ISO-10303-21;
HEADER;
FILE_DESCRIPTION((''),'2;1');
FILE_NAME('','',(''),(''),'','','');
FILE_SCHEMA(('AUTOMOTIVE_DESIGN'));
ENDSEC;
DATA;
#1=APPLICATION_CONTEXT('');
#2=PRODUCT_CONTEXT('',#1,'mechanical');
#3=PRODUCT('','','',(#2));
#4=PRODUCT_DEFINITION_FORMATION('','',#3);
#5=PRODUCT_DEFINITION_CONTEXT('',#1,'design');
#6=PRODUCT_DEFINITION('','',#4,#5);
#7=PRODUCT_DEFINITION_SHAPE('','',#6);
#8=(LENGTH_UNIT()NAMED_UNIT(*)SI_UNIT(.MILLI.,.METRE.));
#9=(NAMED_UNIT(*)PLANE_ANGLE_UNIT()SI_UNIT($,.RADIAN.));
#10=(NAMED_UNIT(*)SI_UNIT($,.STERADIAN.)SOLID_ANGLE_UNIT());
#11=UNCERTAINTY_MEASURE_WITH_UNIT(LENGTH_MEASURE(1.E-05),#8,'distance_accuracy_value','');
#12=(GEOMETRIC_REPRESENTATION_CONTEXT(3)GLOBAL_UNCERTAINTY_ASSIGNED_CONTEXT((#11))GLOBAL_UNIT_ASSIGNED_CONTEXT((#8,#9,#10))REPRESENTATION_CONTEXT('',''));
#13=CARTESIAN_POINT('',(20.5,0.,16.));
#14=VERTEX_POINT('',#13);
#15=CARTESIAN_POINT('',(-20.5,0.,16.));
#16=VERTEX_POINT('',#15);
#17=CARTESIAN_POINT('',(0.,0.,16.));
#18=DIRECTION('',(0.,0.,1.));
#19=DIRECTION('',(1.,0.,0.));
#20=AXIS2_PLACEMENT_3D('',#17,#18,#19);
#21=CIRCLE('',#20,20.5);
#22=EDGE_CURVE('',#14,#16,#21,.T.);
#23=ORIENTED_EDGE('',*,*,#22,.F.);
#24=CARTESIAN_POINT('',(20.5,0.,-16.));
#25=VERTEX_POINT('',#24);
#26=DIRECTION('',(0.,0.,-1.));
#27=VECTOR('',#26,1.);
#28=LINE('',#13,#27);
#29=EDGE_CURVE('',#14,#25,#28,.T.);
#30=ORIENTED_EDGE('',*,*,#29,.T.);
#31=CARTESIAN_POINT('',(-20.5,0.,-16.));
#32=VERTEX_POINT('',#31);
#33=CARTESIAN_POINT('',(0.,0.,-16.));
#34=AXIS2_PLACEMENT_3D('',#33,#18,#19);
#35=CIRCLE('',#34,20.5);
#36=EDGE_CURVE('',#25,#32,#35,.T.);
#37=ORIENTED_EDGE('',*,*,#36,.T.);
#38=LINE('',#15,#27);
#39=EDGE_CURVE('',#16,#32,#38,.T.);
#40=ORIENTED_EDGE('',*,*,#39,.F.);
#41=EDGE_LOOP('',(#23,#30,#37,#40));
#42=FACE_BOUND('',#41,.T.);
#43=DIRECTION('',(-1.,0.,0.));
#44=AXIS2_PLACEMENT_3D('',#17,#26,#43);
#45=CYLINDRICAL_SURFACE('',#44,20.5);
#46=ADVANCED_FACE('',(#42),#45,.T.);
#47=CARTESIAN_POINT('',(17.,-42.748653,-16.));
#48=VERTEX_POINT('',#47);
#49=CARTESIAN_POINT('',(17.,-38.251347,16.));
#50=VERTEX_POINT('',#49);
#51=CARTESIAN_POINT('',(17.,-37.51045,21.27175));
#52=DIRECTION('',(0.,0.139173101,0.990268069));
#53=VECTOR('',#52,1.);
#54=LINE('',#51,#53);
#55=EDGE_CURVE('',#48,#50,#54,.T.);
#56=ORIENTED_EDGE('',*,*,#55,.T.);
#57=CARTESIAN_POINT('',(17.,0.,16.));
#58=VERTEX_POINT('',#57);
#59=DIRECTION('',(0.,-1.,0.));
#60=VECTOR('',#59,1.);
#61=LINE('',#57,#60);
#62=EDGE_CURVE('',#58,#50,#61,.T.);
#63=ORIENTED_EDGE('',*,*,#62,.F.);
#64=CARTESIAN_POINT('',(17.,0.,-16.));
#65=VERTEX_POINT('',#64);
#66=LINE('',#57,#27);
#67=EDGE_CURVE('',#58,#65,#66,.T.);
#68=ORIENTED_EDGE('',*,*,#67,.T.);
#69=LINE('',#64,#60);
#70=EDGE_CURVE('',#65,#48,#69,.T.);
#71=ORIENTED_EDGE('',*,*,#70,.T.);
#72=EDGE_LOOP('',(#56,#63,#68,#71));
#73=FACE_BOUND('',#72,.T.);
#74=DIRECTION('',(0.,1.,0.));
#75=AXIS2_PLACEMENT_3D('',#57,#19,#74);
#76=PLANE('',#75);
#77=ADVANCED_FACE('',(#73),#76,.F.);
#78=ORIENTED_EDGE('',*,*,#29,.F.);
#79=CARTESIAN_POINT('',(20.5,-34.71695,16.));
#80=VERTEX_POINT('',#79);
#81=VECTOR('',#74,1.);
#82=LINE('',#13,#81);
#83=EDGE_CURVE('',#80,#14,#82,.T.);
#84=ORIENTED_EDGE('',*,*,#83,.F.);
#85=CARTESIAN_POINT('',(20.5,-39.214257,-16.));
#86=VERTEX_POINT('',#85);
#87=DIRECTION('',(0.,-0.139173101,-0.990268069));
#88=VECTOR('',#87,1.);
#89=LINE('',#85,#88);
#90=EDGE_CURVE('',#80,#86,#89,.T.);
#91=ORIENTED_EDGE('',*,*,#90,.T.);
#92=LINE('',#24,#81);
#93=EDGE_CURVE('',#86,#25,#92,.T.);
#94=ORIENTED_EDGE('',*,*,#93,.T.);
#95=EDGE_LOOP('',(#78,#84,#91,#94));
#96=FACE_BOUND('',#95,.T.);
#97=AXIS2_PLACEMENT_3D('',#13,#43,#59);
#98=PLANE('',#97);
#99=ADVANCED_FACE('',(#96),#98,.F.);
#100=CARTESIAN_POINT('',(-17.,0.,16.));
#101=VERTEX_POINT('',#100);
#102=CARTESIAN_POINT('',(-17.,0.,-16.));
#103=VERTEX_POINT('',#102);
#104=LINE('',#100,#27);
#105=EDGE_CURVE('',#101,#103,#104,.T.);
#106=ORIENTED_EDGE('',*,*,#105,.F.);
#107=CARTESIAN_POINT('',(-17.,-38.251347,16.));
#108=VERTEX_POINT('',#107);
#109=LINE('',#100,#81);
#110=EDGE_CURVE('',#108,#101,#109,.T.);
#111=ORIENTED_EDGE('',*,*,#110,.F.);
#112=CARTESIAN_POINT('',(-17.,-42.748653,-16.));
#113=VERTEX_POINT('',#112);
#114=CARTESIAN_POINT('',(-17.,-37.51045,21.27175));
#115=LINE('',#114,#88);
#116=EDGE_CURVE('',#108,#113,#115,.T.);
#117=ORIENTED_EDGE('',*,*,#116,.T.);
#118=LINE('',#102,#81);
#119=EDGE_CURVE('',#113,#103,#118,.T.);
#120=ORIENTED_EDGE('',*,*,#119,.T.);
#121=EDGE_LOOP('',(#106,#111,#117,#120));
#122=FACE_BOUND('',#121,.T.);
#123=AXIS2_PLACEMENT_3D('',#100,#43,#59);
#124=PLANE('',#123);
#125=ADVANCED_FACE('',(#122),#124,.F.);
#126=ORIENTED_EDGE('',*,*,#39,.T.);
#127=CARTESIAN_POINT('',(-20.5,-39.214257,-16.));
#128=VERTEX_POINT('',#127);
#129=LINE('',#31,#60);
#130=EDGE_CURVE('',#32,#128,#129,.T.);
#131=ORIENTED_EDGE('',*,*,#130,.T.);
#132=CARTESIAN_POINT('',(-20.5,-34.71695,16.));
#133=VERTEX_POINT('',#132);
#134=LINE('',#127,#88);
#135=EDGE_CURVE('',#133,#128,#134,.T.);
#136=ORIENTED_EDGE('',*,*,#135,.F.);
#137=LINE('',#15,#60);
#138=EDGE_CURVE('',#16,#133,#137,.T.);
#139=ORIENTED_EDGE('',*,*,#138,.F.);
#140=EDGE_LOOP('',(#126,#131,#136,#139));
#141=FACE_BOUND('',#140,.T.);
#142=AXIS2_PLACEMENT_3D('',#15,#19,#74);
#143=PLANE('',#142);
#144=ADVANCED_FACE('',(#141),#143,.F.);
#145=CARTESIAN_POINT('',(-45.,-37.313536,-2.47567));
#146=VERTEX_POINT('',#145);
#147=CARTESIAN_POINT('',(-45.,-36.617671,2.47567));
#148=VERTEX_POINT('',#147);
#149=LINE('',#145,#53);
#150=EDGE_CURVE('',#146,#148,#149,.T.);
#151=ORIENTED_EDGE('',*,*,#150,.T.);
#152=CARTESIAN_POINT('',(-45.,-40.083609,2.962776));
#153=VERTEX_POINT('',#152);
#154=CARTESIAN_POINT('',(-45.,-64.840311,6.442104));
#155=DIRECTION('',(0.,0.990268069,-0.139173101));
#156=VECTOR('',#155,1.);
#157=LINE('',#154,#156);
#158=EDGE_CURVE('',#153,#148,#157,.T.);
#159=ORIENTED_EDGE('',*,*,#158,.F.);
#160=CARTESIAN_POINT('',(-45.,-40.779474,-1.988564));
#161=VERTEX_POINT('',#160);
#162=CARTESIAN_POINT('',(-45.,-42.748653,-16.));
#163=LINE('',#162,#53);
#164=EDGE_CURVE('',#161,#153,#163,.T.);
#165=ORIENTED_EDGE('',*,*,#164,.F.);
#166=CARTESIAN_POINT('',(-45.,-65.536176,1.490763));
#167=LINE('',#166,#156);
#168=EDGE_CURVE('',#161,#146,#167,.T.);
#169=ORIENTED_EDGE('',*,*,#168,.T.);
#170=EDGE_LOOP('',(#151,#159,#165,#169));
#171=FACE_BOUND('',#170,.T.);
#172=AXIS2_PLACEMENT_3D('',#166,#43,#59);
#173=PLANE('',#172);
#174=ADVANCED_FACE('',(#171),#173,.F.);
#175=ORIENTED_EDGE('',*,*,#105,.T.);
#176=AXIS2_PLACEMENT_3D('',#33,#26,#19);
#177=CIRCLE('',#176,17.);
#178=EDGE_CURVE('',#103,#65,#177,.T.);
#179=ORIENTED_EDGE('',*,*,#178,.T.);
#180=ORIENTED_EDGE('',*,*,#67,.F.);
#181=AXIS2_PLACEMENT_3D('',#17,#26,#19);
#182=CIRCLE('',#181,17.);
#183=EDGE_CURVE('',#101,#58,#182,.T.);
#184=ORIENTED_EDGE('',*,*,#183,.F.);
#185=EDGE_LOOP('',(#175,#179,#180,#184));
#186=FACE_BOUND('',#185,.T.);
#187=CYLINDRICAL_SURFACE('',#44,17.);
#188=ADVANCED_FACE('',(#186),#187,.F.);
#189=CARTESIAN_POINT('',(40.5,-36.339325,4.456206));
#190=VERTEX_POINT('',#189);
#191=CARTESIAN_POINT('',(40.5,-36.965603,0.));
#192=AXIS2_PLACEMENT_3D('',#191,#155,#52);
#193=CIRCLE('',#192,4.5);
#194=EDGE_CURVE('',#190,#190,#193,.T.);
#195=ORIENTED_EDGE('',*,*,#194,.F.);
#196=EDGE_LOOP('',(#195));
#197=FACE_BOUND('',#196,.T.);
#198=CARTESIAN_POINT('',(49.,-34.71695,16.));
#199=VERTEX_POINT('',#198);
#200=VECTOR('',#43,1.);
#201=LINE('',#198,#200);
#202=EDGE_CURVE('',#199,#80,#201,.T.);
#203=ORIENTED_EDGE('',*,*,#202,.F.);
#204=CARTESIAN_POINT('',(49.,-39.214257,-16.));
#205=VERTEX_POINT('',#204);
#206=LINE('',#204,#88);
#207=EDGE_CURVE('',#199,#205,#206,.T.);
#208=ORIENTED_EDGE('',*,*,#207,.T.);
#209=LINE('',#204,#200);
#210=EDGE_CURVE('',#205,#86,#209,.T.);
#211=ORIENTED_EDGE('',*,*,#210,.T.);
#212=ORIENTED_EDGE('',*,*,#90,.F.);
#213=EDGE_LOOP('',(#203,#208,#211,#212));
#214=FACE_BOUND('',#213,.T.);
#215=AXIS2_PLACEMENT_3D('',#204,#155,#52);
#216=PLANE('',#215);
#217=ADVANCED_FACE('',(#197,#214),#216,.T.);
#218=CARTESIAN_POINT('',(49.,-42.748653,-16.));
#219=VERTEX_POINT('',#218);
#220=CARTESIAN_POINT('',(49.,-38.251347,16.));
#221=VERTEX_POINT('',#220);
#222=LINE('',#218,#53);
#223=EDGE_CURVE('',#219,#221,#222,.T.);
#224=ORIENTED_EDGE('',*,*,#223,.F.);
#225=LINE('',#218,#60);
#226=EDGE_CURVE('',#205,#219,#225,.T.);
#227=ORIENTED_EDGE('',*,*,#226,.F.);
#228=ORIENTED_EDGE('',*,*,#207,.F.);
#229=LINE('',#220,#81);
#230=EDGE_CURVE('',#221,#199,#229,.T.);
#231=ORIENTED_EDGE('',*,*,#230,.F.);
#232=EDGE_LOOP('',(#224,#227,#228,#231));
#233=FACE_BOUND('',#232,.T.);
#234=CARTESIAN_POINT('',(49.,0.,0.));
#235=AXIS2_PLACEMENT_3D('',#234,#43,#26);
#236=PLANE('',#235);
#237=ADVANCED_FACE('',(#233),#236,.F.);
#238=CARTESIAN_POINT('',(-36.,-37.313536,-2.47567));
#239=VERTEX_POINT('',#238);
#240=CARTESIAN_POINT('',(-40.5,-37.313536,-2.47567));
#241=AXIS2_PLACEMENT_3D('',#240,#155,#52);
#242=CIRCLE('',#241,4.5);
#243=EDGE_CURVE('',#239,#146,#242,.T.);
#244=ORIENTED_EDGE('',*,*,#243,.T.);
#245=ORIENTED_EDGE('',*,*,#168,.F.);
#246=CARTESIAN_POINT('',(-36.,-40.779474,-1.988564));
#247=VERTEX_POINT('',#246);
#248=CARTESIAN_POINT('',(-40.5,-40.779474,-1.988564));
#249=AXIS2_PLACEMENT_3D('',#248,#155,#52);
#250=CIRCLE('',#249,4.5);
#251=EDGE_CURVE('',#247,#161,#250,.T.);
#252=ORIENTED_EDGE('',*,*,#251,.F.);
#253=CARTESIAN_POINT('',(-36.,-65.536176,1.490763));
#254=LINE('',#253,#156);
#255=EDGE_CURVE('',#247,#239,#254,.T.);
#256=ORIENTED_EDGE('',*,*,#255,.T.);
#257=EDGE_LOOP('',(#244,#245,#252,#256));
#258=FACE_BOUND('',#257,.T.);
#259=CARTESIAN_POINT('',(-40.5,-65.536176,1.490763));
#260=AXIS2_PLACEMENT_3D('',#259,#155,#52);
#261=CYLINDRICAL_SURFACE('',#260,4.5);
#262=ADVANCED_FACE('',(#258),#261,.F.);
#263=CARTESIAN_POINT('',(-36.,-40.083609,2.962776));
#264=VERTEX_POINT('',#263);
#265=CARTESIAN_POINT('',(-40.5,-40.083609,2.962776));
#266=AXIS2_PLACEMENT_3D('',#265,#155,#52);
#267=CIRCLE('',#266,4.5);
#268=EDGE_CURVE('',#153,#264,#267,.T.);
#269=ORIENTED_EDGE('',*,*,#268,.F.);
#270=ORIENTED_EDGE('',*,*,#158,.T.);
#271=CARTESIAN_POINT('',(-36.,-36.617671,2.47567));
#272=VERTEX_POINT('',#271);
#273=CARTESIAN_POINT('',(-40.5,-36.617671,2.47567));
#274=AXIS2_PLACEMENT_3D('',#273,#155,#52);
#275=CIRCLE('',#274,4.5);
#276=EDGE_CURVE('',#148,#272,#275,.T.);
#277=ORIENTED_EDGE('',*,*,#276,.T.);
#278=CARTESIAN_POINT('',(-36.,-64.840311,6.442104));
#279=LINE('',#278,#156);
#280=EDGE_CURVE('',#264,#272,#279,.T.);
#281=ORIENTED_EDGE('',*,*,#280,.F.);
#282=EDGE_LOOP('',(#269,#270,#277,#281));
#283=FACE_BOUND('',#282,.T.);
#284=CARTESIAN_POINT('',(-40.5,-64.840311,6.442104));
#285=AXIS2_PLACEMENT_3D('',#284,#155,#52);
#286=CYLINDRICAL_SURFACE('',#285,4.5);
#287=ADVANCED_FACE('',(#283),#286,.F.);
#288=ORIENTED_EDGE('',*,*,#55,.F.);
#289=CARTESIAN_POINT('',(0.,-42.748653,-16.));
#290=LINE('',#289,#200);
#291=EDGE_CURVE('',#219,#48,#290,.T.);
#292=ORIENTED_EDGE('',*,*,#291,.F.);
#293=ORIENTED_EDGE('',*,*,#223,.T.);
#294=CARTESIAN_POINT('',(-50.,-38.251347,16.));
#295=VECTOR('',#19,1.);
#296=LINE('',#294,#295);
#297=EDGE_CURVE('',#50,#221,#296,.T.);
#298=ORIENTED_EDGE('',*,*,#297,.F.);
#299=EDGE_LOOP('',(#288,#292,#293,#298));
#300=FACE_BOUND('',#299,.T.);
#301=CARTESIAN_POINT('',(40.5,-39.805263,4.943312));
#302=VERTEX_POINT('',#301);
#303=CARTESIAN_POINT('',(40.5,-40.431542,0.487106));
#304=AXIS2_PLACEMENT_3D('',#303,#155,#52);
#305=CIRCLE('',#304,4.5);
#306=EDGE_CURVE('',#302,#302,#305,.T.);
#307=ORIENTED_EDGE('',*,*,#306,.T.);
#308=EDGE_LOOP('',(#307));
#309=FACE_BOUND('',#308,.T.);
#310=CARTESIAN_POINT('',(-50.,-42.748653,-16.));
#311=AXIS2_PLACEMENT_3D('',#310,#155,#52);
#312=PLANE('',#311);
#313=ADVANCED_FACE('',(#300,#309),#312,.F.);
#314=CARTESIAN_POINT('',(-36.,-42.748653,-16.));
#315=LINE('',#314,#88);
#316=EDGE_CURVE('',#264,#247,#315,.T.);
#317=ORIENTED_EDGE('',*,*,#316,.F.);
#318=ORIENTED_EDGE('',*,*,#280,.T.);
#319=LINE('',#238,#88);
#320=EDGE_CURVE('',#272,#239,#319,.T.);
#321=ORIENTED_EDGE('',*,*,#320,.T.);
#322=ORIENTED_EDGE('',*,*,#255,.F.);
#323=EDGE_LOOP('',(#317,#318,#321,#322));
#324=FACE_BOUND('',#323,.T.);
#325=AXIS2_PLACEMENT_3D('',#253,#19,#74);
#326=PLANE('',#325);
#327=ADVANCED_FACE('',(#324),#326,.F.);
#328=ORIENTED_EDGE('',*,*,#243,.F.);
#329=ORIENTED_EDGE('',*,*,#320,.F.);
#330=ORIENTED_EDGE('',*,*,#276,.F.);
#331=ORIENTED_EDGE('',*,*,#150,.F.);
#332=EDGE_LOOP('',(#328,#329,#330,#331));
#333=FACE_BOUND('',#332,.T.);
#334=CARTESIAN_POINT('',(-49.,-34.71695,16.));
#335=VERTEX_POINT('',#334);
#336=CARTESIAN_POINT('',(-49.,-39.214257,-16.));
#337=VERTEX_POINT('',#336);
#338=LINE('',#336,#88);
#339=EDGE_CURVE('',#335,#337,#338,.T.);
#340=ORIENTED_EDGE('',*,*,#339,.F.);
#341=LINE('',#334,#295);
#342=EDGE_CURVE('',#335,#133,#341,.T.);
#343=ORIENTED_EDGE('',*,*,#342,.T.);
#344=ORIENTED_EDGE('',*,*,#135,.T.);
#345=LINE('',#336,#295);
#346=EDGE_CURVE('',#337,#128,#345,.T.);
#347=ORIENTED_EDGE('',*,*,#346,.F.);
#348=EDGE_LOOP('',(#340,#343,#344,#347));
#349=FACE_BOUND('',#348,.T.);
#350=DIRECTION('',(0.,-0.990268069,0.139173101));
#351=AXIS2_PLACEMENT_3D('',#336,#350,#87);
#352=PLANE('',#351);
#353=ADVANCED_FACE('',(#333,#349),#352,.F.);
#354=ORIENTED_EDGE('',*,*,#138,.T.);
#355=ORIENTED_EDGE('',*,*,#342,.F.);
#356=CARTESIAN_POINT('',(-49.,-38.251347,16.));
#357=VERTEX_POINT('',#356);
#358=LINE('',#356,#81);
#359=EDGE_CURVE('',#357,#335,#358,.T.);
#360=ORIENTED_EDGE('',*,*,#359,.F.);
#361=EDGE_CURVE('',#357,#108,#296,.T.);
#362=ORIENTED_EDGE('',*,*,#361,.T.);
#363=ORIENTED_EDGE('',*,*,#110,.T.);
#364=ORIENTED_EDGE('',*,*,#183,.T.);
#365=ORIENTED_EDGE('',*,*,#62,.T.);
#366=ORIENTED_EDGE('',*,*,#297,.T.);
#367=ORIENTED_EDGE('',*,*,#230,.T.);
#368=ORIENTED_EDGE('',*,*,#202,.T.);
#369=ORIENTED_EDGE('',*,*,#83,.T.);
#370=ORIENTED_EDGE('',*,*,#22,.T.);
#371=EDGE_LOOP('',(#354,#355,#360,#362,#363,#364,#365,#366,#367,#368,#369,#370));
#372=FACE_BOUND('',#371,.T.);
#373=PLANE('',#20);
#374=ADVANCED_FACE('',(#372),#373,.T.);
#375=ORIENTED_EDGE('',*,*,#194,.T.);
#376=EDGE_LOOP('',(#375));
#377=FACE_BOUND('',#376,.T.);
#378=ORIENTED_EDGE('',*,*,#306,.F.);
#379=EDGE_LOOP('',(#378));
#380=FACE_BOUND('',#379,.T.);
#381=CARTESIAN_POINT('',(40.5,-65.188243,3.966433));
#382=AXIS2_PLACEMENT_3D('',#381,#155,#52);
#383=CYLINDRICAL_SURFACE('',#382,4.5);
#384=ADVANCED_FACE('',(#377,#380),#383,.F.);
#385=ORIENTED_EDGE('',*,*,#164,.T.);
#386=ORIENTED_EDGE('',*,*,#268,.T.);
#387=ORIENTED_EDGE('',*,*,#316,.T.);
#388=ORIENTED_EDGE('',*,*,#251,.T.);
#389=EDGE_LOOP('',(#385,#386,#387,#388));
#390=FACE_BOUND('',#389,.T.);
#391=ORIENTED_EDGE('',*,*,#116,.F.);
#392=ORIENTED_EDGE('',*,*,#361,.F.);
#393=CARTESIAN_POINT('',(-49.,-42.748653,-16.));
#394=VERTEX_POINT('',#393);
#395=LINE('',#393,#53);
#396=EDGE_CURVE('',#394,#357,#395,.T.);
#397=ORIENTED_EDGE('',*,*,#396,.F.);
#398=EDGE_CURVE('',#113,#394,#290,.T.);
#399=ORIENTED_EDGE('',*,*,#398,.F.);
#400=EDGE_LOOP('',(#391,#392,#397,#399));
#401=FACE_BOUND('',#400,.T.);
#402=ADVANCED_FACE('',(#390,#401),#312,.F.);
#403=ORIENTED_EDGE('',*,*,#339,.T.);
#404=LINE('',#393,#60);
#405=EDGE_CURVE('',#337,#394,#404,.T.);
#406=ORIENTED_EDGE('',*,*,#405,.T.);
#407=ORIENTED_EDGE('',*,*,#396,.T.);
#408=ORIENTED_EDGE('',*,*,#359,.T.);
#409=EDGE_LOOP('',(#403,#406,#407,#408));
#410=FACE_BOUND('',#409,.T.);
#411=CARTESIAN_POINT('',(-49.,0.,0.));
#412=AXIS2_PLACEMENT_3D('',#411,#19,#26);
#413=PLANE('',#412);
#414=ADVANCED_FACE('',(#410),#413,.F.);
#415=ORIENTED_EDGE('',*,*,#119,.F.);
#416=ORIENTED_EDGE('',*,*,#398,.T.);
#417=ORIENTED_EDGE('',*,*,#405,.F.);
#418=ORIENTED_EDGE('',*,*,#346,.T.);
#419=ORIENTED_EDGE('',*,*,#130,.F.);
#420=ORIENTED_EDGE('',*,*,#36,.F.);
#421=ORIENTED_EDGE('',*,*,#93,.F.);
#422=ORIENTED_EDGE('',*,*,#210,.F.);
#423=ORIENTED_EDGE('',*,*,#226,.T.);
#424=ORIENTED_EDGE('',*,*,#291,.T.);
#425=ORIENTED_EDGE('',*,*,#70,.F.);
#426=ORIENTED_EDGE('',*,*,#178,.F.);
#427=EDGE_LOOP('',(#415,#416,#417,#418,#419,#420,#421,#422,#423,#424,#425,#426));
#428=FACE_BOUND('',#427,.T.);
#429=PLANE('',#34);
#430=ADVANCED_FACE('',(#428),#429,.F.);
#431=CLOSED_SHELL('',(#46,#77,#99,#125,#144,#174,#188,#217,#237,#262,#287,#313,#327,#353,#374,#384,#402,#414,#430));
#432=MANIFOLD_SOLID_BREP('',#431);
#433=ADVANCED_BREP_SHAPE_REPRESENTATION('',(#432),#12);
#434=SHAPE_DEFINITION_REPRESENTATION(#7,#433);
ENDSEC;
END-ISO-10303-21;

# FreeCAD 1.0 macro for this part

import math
import FreeCAD as App
import Part
import Sketcher
from FreeCAD import Vector
Q = App.Units.Quantity


def add_polygon(sketch, points):
    """Adds a closed chain of lines whose ends are joined by coincident constraints."""
    first, n = sketch.GeometryCount, len(points)
    for a, b in zip(points, points[1:] + points[:1]):
        sketch.addGeometry(Part.LineSegment(App.Vector(*a, 0), App.Vector(*b, 0)), False)
    for i in range(n):
        sketch.addConstraint(Sketcher.Constraint("Coincident", first + i, 2, first + (i + 1) % n, 1))

doc = App.newDocument("Part")
body = doc.addObject("PartDesign::Body", "Body")

sketch1 = body.newObject("Sketcher::SketchObject", "Sketch")
sketch1.AttachmentSupport = (doc.getObject("XY_Plane"), [""])
sketch1.MapMode = "FlatFace"
sketch1.addGeometry([
    Part.LineSegment(Vector(-17, -66.9, 0), Vector(-17, 0, 0)),
    Part.ArcOfCircle(Part.Circle(Vector(0, 0, 0), Vector(0, 0, 1), 17), math.radians(0), math.radians(180)),
    Part.LineSegment(Vector(17, 0, 0), Vector(17, -66.9, 0)),
    Part.LineSegment(Vector(17, -66.9, 0), Vector(20.5, -66.9, 0)),
    Part.LineSegment(Vector(20.5, -66.9, 0), Vector(20.5, 0, 0)),
    Part.ArcOfCircle(Part.Circle(Vector(0, 0, 0), Vector(0, 0, 1), 20.5), math.radians(0), math.radians(180)),
    Part.LineSegment(Vector(-20.5, 0, 0), Vector(-20.5, -66.9, 0)),
    Part.LineSegment(Vector(-20.5, -66.9, 0), Vector(-17, -66.9, 0)),
], False)
sketch1.addConstraint([
    Sketcher.Constraint("Tangent", 0, 2, 1, 2),
    Sketcher.Constraint("Tangent", 1, 1, 2, 1),
    Sketcher.Constraint("Coincident", 2, 2, 3, 1),
    Sketcher.Constraint("Coincident", 3, 2, 4, 1),
    Sketcher.Constraint("Tangent", 4, 2, 5, 1),
    Sketcher.Constraint("Tangent", 5, 2, 6, 1),
    Sketcher.Constraint("Coincident", 6, 2, 7, 1),
    Sketcher.Constraint("Coincident", 7, 2, 0, 1),
    Sketcher.Constraint("Vertical", 0),
    Sketcher.Constraint("Vertical", 2),
    Sketcher.Constraint("Horizontal", 3),
    Sketcher.Constraint("Vertical", 4),
    Sketcher.Constraint("Vertical", 6),
    Sketcher.Constraint("Horizontal", 7),
    Sketcher.Constraint("Coincident", 1, 3, -1, 1),
    Sketcher.Constraint("Coincident", 5, 3, -1, 1),
    Sketcher.Constraint("Horizontal", 3, 2, 6, 2),
    Sketcher.Constraint("Radius", 1, Q("17 mm")),
    Sketcher.Constraint("Radius", 5, Q("20.5 mm")),
    Sketcher.Constraint("DistanceY", 0, 1, 0, 2, Q("66.863887 mm")),
])
pad1 = body.newObject("PartDesign::Pad", "Pad")
pad1.Profile = sketch1
pad1.Length = 32
pad1.Midplane = True

sketch2 = body.newObject("Sketcher::SketchObject", "Sketch001")
sketch2.AttachmentSupport = (doc.getObject("YZ_Plane"), [""])
sketch2.MapMode = "FlatFace"
add_polygon(sketch2, [(-43, -16), (-38, 16), (-67, 16), (-67, -16)])
sketch2.addConstraint([
    Sketcher.Constraint("Horizontal", 1),
    Sketcher.Constraint("Vertical", 2),
    Sketcher.Constraint("Horizontal", 3),
    Sketcher.Constraint("DistanceY", 2, 2, 2, 1, Q("32 mm")),
    Sketcher.Constraint("Angle", 0, Q("82 deg")),
    Sketcher.Constraint("DistanceY", -1, 1, 0, 2, Q("16 mm")),
    Sketcher.Constraint("DistanceX", 1, 2, 1, 1, Q("28.61254 mm")),
    Sketcher.Constraint("DistanceX", 0, 2, -1, 1, Q("38.251347 mm")),
])
pocket1 = body.newObject("PartDesign::Pocket", "Pocket")
pocket1.Profile = sketch2
pocket1.Length = 100
pocket1.Midplane = True

sketch3 = body.newObject("Sketcher::SketchObject", "Sketch002")
sketch3.AttachmentSupport = (doc.getObject("YZ_Plane"), [""])
sketch3.MapMode = "FlatFace"
sketch3.AttachmentOffset = App.Placement(Vector(0, 0, -20.5), App.Rotation())
add_polygon(sketch3, [(-42.7, -16), (-38.3, 16), (-34.7, 16), (-39.2, -16)])
sketch3.addConstraint([
    Sketcher.Constraint("Horizontal", 1),
    Sketcher.Constraint("Horizontal", 3),
    Sketcher.Constraint("Parallel", 0, 2),
    Sketcher.Constraint("Angle", 0, Q("82 deg")),
    Sketcher.Constraint("DistanceY", -1, 1, 0, 2, Q("16 mm")),
    Sketcher.Constraint("DistanceY", 2, 2, -1, 1, Q("16 mm")),
    Sketcher.Constraint("DistanceX", 1, 1, 1, 2, Q("3.534397 mm")),
    Sketcher.Constraint("DistanceX", 1, 2, -1, 1, Q("34.71695 mm")),
])
pad2 = body.newObject("PartDesign::Pad", "Pad001")
pad2.Profile = sketch3
pad2.Length = 28.5
pad2.Reversed = True
doc.recompute()

mirrored = body.newObject("PartDesign::Mirrored", "Mirrored")
mirrored.Originals = [pad2]
mirrored.MirrorPlane = (doc.getObject("YZ_Plane"), [""])
body.Tip = mirrored

sketch4 = body.newObject("Sketcher::SketchObject", "Sketch003")
sketch4.Placement = App.Placement(Vector(0, -36.249611, 5.094551), App.Rotation(Vector(1, 0, 0), Vector(0, -0.139173101, -0.990268069), Vector(0, 0.990268069, -0.139173101), "ZXY"))
sketch4.addGeometry([
    Part.Circle(Vector(40.5, 5.1, 0), Vector(0, 0, 1), 4.5),
    Part.LineSegment(Vector(-36, 2.6, 0), Vector(-36, 7.6, 0)),
    Part.ArcOfCircle(Part.Circle(Vector(-40.5, 7.6, 0), Vector(0, 0, 1), 4.5), math.radians(0), math.radians(180)),
    Part.LineSegment(Vector(-45, 7.6, 0), Vector(-45, 2.6, 0)),
    Part.ArcOfCircle(Part.Circle(Vector(-40.5, 2.6, 0), Vector(0, 0, 1), 4.5), math.radians(180), math.radians(360)),
], False)
sketch4.addConstraint([
    Sketcher.Constraint("Tangent", 1, 2, 2, 1),
    Sketcher.Constraint("Tangent", 2, 2, 3, 1),
    Sketcher.Constraint("Tangent", 3, 2, 4, 1),
    Sketcher.Constraint("Tangent", 4, 2, 1, 1),
    Sketcher.Constraint("Vertical", 1),
    Sketcher.Constraint("Vertical", 3),
    Sketcher.Constraint("Equal", 0, 2),
    Sketcher.Constraint("Diameter", 0, Q("9 mm")),
    Sketcher.Constraint("DistanceY", 1, 1, 1, 2, Q("5 mm")),
    Sketcher.Constraint("DistanceX", 1, 2, -1, 1, Q("36 mm")),
    Sketcher.Constraint("DistanceX", 2, 3, 0, 3, Q("81 mm")),
    Sketcher.Constraint("DistanceY", 0, 3, 2, 3, Q("2.5 mm")),
    Sketcher.Constraint("DistanceY", -1, 1, 0, 3, Q("5.144618 mm")),
])
pocket2 = body.newObject("PartDesign::Pocket", "Pocket001")
pocket2.Profile = sketch4
pocket2.Length = 28.5

doc.recompute()
